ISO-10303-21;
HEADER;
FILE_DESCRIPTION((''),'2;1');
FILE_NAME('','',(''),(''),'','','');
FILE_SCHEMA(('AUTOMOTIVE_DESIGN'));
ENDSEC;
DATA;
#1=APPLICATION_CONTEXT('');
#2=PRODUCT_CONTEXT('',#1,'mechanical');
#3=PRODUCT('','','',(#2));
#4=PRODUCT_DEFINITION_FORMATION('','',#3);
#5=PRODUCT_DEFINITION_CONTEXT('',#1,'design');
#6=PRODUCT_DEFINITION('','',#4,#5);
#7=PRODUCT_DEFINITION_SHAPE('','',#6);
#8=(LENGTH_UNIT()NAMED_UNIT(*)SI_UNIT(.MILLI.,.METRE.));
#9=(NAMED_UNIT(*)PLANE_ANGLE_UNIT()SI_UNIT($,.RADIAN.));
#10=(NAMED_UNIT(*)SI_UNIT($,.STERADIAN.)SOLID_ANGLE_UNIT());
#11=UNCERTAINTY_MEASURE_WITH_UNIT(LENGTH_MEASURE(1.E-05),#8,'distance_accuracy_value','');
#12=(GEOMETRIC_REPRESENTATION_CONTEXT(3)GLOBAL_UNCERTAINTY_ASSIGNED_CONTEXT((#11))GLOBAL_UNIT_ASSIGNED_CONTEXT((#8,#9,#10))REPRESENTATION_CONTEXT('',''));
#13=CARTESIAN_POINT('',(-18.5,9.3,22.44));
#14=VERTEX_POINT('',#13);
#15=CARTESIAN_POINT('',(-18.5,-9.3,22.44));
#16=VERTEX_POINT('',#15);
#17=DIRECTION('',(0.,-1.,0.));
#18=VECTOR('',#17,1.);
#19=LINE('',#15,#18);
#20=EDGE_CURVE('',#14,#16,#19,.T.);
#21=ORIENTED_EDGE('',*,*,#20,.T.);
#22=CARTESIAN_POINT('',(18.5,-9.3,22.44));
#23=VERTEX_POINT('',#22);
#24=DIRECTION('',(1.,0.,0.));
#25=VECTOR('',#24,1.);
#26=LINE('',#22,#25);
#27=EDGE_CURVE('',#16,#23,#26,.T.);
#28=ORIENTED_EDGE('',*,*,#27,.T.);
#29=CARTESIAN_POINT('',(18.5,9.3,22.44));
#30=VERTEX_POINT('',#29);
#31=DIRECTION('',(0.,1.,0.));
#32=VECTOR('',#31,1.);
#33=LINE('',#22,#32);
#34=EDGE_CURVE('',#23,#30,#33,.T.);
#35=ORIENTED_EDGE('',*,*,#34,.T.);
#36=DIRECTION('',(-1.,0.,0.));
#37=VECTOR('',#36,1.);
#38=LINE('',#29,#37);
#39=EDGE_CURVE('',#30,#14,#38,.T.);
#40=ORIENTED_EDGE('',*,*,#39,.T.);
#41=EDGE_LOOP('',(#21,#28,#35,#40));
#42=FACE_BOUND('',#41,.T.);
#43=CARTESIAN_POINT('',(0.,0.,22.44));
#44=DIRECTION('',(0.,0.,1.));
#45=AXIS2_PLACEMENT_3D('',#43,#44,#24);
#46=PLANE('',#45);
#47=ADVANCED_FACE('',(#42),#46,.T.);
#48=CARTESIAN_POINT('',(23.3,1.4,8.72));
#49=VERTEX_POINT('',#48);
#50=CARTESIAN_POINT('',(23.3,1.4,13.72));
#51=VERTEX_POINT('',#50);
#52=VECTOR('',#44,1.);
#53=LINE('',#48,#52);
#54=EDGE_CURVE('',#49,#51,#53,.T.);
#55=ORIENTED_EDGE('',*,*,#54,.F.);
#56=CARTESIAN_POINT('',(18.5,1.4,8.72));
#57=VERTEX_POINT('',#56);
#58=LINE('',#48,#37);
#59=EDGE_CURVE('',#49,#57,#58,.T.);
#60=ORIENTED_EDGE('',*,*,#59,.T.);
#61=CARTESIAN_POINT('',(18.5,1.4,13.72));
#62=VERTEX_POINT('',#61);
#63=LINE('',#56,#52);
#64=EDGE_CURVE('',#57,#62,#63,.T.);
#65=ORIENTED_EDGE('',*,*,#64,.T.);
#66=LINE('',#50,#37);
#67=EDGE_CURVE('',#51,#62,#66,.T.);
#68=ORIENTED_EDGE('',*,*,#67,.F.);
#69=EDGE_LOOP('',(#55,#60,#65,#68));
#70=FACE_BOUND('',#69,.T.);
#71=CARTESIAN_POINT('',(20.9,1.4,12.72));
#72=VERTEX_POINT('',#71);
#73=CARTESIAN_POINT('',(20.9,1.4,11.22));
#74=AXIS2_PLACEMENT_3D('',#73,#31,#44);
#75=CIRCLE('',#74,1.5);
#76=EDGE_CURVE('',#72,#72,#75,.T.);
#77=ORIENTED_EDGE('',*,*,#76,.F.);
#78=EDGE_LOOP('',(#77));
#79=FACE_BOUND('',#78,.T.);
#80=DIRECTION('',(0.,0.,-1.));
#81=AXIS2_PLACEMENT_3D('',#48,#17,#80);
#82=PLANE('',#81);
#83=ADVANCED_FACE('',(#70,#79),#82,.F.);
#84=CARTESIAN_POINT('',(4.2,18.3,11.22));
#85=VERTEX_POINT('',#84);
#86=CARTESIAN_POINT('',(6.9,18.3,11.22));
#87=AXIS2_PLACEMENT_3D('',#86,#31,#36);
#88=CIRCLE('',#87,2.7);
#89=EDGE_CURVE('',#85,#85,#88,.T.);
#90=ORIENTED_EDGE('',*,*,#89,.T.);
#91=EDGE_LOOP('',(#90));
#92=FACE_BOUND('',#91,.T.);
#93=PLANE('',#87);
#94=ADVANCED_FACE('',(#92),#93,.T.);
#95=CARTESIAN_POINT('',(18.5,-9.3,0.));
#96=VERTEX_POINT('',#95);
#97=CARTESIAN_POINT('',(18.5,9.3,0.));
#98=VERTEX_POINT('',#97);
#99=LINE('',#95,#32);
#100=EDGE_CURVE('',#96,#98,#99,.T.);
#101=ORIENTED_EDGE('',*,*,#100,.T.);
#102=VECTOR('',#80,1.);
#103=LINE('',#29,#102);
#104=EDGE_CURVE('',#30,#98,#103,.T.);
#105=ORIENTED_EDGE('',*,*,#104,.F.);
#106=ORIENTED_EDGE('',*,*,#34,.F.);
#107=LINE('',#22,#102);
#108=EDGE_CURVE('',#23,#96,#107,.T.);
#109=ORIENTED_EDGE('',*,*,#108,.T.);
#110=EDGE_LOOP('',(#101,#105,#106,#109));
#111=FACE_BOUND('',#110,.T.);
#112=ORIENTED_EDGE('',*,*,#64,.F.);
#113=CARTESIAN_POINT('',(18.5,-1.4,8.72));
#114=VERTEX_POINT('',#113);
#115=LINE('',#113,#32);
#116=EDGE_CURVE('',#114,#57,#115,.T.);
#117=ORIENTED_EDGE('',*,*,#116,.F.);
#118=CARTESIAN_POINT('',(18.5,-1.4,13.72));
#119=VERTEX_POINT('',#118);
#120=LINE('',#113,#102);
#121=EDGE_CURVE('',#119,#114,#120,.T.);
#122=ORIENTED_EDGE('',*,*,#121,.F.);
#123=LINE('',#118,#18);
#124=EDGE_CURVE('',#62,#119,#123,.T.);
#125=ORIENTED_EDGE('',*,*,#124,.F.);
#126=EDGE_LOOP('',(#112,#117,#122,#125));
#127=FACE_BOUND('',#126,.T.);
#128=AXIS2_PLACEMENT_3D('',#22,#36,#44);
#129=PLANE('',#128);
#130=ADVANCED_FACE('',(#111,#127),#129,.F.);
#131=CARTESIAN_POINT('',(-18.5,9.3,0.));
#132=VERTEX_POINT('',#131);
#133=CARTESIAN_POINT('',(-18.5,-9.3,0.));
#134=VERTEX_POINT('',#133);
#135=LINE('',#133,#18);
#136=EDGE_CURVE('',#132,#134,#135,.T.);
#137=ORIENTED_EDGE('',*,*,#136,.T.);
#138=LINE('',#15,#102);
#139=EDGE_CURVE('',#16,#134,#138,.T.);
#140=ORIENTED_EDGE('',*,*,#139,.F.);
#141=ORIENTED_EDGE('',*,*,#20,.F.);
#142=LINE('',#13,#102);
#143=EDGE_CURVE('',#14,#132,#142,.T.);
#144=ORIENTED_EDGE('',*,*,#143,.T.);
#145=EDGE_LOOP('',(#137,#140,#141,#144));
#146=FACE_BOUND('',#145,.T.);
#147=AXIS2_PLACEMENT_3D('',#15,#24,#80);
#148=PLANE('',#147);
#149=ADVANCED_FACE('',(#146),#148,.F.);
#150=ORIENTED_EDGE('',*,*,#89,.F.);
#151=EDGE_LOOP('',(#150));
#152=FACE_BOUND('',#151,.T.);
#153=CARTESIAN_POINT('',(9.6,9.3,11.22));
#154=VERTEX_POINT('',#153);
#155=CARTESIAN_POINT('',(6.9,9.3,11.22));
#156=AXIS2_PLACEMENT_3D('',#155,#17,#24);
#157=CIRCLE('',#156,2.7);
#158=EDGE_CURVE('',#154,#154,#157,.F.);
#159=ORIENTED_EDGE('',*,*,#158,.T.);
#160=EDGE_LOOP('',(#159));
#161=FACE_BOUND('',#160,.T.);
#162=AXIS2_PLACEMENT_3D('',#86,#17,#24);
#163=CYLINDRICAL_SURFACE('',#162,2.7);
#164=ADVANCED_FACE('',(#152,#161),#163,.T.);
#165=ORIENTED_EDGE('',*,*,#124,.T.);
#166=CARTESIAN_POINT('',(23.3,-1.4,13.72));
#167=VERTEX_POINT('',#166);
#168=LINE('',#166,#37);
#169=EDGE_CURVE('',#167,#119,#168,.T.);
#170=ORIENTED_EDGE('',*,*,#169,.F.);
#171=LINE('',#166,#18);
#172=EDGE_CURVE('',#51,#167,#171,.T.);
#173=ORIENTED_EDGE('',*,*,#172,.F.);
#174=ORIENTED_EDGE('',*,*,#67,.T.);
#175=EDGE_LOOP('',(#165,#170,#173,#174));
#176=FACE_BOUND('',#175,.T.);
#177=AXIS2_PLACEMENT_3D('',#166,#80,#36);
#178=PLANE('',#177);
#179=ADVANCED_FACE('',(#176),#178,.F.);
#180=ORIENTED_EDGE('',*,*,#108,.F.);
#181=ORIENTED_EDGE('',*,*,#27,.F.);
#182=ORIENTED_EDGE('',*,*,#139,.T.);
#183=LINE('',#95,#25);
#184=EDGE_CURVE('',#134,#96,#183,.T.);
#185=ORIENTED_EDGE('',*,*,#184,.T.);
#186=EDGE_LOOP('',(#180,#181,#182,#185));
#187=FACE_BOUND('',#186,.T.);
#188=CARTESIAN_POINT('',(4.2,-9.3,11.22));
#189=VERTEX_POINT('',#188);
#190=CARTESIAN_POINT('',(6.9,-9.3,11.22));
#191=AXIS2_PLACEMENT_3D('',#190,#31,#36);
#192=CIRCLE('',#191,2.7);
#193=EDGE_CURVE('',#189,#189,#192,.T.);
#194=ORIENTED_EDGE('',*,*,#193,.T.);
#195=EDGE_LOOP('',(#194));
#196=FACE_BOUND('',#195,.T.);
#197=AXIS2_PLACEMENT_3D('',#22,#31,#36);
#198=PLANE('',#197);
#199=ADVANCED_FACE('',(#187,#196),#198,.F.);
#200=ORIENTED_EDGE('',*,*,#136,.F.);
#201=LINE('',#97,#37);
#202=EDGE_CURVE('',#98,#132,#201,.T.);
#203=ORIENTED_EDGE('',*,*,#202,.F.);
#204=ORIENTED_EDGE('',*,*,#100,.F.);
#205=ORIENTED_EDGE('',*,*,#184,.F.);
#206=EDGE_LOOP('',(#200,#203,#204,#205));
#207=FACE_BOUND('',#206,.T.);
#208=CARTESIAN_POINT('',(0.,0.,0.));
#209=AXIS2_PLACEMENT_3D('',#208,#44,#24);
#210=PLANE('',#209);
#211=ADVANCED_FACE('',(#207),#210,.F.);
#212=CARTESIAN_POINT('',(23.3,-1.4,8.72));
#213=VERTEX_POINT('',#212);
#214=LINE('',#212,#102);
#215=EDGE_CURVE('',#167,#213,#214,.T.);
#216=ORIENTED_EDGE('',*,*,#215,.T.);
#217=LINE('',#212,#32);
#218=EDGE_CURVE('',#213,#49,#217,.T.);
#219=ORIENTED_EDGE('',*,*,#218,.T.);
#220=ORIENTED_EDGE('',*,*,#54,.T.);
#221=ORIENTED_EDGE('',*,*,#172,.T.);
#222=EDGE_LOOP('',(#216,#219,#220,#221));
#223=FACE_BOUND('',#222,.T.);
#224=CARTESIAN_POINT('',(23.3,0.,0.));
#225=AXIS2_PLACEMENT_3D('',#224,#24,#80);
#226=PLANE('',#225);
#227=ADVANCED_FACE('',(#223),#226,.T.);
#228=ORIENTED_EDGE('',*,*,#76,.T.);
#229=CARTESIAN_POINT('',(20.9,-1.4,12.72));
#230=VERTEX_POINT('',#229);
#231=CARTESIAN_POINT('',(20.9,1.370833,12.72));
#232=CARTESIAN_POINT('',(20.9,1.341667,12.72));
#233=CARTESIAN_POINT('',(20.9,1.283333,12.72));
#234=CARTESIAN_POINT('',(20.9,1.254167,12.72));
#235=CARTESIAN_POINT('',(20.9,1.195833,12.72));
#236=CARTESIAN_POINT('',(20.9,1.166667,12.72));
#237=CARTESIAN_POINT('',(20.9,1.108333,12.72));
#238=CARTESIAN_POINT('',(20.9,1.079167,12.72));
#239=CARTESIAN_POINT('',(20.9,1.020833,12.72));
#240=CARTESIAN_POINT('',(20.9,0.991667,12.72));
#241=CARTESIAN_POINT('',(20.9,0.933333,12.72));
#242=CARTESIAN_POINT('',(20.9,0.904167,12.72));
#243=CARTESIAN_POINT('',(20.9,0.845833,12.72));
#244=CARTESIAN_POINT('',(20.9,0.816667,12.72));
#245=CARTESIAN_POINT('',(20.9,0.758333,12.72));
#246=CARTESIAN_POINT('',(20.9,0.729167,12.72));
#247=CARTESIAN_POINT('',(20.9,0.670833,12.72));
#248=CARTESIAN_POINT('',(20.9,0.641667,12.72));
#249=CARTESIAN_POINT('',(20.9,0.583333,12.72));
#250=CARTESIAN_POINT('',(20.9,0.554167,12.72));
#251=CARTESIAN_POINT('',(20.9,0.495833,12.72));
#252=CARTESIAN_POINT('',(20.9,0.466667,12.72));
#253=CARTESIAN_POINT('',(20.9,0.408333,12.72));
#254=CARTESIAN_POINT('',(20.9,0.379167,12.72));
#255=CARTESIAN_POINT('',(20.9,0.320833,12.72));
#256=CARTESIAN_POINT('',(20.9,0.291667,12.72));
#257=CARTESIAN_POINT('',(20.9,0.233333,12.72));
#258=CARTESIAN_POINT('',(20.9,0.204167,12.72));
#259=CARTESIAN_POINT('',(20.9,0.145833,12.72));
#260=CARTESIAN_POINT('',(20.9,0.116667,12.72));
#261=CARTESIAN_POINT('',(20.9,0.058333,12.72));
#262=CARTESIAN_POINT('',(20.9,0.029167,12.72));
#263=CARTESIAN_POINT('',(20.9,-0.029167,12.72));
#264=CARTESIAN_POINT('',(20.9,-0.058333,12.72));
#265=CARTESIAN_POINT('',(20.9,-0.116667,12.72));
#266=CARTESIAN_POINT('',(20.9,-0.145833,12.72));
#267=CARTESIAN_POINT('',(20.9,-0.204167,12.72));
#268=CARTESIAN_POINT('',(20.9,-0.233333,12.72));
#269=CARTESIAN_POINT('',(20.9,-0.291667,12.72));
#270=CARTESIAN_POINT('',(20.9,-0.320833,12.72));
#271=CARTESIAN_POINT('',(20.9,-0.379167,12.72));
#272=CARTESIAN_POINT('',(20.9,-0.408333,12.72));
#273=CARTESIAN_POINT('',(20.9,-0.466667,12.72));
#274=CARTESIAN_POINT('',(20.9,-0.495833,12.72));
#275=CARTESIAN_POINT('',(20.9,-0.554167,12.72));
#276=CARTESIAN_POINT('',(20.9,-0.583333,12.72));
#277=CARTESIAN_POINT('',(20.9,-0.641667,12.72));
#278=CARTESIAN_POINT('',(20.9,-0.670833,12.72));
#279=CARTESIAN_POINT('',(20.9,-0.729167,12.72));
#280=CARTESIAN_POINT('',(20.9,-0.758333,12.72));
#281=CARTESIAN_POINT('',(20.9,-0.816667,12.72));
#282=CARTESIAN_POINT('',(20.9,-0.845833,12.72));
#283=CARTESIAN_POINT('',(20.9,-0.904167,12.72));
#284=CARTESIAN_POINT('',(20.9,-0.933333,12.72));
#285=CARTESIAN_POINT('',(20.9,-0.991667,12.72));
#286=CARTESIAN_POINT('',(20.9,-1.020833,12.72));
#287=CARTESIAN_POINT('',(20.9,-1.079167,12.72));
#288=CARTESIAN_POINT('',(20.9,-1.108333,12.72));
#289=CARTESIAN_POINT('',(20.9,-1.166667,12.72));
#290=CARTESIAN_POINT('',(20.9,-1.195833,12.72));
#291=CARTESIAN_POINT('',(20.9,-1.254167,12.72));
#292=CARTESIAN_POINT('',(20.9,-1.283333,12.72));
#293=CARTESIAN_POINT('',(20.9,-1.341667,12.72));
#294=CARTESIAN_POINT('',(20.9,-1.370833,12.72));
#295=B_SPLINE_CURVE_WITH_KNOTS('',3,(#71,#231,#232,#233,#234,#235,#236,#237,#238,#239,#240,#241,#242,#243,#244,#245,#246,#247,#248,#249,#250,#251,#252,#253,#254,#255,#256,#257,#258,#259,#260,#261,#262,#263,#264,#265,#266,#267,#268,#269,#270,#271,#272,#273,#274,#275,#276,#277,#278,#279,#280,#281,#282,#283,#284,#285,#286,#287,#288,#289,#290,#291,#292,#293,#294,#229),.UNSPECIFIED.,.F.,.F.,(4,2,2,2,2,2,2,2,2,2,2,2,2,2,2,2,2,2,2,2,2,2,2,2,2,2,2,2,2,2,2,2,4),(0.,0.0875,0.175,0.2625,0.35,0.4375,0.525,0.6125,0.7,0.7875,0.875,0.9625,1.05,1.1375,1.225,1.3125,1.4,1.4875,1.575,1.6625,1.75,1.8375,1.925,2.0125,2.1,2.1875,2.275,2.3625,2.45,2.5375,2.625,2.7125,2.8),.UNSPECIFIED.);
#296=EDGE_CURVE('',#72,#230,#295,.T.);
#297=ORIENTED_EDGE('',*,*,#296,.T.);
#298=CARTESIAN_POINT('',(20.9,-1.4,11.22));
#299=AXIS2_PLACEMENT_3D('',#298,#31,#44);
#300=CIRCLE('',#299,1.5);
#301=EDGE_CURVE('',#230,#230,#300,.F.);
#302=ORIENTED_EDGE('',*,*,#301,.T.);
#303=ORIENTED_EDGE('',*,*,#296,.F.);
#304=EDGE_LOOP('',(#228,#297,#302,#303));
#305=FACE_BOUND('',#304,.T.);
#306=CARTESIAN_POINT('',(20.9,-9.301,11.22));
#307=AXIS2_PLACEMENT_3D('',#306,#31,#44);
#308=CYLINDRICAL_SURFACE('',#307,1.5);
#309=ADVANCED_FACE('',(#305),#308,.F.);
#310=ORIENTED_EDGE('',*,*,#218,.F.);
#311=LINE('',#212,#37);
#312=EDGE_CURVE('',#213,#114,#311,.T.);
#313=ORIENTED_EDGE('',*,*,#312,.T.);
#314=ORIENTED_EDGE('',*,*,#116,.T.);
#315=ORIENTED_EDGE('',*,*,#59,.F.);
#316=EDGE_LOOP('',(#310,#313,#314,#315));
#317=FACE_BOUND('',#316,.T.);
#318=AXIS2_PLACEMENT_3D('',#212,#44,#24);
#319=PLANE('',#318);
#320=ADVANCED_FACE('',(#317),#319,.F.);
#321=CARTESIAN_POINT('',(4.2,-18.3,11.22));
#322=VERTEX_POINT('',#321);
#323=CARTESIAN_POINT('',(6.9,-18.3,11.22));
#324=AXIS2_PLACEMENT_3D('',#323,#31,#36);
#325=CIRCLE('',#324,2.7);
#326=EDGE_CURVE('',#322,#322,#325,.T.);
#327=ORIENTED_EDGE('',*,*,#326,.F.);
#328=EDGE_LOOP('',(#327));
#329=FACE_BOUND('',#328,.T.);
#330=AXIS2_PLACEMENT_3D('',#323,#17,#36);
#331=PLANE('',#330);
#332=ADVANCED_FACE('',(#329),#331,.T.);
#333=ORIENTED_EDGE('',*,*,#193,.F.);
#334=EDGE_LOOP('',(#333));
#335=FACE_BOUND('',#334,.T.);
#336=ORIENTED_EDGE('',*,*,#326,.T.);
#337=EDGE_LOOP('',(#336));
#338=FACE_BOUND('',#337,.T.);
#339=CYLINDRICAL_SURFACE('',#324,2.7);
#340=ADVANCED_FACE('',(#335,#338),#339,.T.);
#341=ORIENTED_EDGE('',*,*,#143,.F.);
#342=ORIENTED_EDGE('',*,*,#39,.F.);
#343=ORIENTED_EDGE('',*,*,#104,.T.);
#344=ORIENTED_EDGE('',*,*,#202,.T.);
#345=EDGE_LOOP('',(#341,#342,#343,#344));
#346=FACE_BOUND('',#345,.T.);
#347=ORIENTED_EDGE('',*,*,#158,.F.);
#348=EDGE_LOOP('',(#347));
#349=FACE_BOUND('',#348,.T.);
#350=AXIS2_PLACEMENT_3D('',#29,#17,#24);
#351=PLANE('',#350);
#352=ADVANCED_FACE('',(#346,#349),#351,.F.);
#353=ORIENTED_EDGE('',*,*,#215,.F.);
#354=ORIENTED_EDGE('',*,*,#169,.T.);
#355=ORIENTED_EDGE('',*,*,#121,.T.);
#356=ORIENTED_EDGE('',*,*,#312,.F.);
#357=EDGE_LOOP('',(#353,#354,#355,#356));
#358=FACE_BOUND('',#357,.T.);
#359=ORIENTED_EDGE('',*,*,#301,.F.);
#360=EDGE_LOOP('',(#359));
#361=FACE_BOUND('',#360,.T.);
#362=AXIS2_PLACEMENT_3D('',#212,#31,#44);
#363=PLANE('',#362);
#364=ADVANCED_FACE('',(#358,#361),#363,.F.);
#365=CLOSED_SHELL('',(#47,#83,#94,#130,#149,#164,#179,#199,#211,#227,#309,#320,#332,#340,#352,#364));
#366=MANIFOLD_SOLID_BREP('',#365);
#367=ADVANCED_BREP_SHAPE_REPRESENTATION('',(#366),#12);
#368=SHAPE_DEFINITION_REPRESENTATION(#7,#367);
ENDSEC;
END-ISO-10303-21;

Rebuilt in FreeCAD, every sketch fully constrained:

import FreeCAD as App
import Part
import Sketcher
from FreeCAD import Vector
Q = App.Units.Quantity


def add_polygon(sketch, points):
    """Adds a closed chain of lines whose ends are joined by coincident constraints."""
    first, n = sketch.GeometryCount, len(points)
    for a, b in zip(points, points[1:] + points[:1]):
        sketch.addGeometry(Part.LineSegment(App.Vector(*a, 0), App.Vector(*b, 0)), False)
    for i in range(n):
        sketch.addConstraint(Sketcher.Constraint("Coincident", first + i, 2, first + (i + 1) % n, 1))

doc = App.newDocument("Part")
body = doc.addObject("PartDesign::Body", "Body")

sketch1 = body.newObject("Sketcher::SketchObject", "Sketch")
sketch1.AttachmentSupport = (doc.getObject("XY_Plane"), [""])
sketch1.MapMode = "FlatFace"
add_polygon(sketch1, [(-18, 9), (-18, -9), (18, -9), (18, 9)])
sketch1.addConstraint([
    Sketcher.Constraint("Vertical", 0),
    Sketcher.Constraint("Horizontal", 1),
    Sketcher.Constraint("Vertical", 2),
    Sketcher.Constraint("Horizontal", 3),
    Sketcher.Constraint("Symmetric", 0, 2, 2, 2, -1, 1),
    Sketcher.Constraint("DistanceX", 1, 1, 1, 2, Q("37 mm")),
    Sketcher.Constraint("DistanceY", 0, 2, 0, 1, Q("18.6 mm")),
])
pad1 = body.newObject("PartDesign::Pad", "Pad")
pad1.Profile = sketch1
pad1.Length = 22.44

sketch2 = body.newObject("Sketcher::SketchObject", "Sketch001")
sketch2.AttachmentSupport = (doc.getObject("YZ_Plane"), [""])
sketch2.MapMode = "FlatFace"
sketch2.AttachmentOffset = App.Placement(Vector(0, 0, 18.5), App.Rotation())
add_polygon(sketch2, [(1.4, 13.7), (-1.4, 13.7), (-1.4, 8.7), (1.4, 8.7)])
sketch2.addConstraint([
    Sketcher.Constraint("Horizontal", 0),
    Sketcher.Constraint("Vertical", 1),
    Sketcher.Constraint("Horizontal", 2),
    Sketcher.Constraint("Vertical", 3),
    Sketcher.Constraint("DistanceY", 1, 2, 1, 1, Q("5 mm")),
    Sketcher.Constraint("DistanceX", 0, 2, 0, 1, Q("2.8 mm")),
    Sketcher.Constraint("DistanceX", 0, 2, -1, 1, Q("1.4 mm")),
    Sketcher.Constraint("DistanceY", -1, 1, 0, 2, Q("13.72 mm")),
])
pad2 = body.newObject("PartDesign::Pad", "Pad001")
pad2.Profile = sketch2
pad2.Length = 4.8

sketch3 = body.newObject("Sketcher::SketchObject", "Sketch002")
sketch3.AttachmentSupport = (doc.getObject("XZ_Plane"), [""])
sketch3.MapMode = "FlatFace"
sketch3.AttachmentOffset = App.Placement(Vector(0, 0, -1.4), App.Rotation())
sketch3.addGeometry(Part.Circle(Vector(20.9, 11.2, 0), Vector(0, 0, 1), 1.5), False)
sketch3.addConstraint([
    Sketcher.Constraint("Diameter", 0, Q("3 mm")),
    Sketcher.Constraint("DistanceX", -1, 1, 0, 3, Q("20.9 mm")),
    Sketcher.Constraint("DistanceY", -1, 1, 0, 3, Q("11.22 mm")),
])
pocket1 = body.newObject("PartDesign::Pocket", "Pocket")
pocket1.Profile = sketch3
pocket1.Type = "UpToFirst"
pocket1.Reversed = True

sketch4 = body.newObject("Sketcher::SketchObject", "Sketch003")
sketch4.AttachmentSupport = (doc.getObject("XZ_Plane"), [""])
sketch4.MapMode = "FlatFace"
sketch4.AttachmentOffset = App.Placement(Vector(0, 0, -9.3), App.Rotation())
sketch4.addGeometry(Part.Circle(Vector(6.9, 11.2, 0), Vector(0, 0, 1), 2.7), False)
sketch4.addConstraint([
    Sketcher.Constraint("Diameter", 0, Q("5.4 mm")),
    Sketcher.Constraint("DistanceX", -1, 1, 0, 3, Q("6.9 mm")),
    Sketcher.Constraint("DistanceY", -1, 1, 0, 3, Q("11.22 mm")),
])
pad3 = body.newObject("PartDesign::Pad", "Pad002")
pad3.Profile = sketch4
pad3.Length = 9
pad3.Reversed = True
doc.recompute()

mirrored = body.newObject("PartDesign::Mirrored", "Mirrored")
mirrored.Originals = [pad3]
mirrored.MirrorPlane = (doc.getObject("XZ_Plane"), [""])
body.Tip = mirrored

doc.recompute()
